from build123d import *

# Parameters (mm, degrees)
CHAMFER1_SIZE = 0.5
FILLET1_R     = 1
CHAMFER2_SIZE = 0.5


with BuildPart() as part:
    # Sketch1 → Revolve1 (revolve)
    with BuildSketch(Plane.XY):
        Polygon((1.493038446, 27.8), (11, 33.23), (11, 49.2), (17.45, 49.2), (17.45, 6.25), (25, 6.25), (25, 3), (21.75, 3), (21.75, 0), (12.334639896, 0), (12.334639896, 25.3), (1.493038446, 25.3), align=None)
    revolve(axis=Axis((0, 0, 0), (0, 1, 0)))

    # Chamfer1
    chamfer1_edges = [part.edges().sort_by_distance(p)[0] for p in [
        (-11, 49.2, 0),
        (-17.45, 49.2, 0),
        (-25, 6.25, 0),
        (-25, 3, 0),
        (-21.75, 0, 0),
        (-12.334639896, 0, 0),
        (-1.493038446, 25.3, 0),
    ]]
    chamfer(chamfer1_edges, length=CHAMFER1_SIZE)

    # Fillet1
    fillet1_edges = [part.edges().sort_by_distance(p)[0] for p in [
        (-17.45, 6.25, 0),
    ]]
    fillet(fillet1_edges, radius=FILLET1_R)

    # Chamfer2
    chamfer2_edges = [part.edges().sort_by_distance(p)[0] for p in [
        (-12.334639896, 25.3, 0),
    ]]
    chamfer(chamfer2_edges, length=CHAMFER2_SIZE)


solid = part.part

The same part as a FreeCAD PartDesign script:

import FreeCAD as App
import Part
import Sketcher
from FreeCAD import Vector
Q = App.Units.Quantity


def edges_at(feature, points):
    """Names of the edges that pass closest to the given points."""
    edges = feature.Shape.Edges
    near = lambda p: min(range(len(edges)), key=lambda i: edges[i].distToShape(Part.Vertex(*p))[0])
    return sorted({f"Edge{near(p) + 1}" for p in points})


def add_polygon(sketch, points):
    """Adds a closed chain of lines whose ends are joined by coincident constraints."""
    first, n = sketch.GeometryCount, len(points)
    for a, b in zip(points, points[1:] + points[:1]):
        sketch.addGeometry(Part.LineSegment(App.Vector(*a, 0), App.Vector(*b, 0)), False)
    for i in range(n):
        sketch.addConstraint(Sketcher.Constraint("Coincident", first + i, 2, first + (i + 1) % n, 1))

doc = App.newDocument("Part")
body = doc.addObject("PartDesign::Body", "Body")

# Sketch on XY plane
sketch1 = doc.addObject("Sketcher::SketchObject", "Sketch")
body.addObject(sketch1)
sketch1.AttachmentSupport = (doc.XY_Plane, [""])
sketch1.MapMode = "FlatFace"
add_polygon(sketch1, [(11, 33.2), (1.5, 27.8), (1.5, 25.3), (12.3, 25.3), (12.3, 0), (21.8, 0), (21.8, 3), (25, 3), (25, 6.2), (17.4, 6.2), (17.4, 49.2), (11, 49.2)])  # lines 0-11
sketch1.addConstraint([
    Sketcher.Constraint("Vertical", 1),
    Sketcher.Constraint("Horizontal", 2),
    Sketcher.Constraint("Vertical", 3),
    Sketcher.Constraint("Horizontal", 4),
    Sketcher.Constraint("Vertical", 5),
    Sketcher.Constraint("Horizontal", 6),
    Sketcher.Constraint("Vertical", 7),
    Sketcher.Constraint("Horizontal", 8),
    Sketcher.Constraint("Vertical", 9),
    Sketcher.Constraint("Horizontal", 10),
    Sketcher.Constraint("Vertical", 11),
    Sketcher.Constraint("PointOnObject", 3, 2, -1),
    Sketcher.Constraint("Equal", 6, 7),
    Sketcher.Constraint("DistanceY", 5, 1, 5, 2, Q("3 mm")),
    Sketcher.Constraint("DistanceY", 1, 2, 1, 1, Q("2.5 mm")),
    Sketcher.Constraint("DistanceY", 3, 2, 3, 1, Q("25.3 mm")),
    Sketcher.Constraint("DistanceX", -1, 1, 6, 2, Q("25 mm")),
    Sketcher.Constraint("DistanceX", -1, 1, 10, 2, Q("11 mm")),
    Sketcher.Constraint("DistanceX", 6, 1, 6, 2, Q("3.25 mm")),
    Sketcher.Constraint("DistanceX", 8, 2, 8, 1, Q("7.55 mm")),
    Sketcher.Constraint("DistanceY", 9, 1, 9, 2, Q("42.95 mm")),
    Sketcher.Constraint("DistanceY", 11, 2, 11, 1, Q("15.97 mm")),
    Sketcher.Constraint("DistanceX", 2, 1, 2, 2, Q("10.841601 mm")),
    Sketcher.Constraint("DistanceX", 4, 1, 4, 2, Q("9.41536 mm")),
])
revolution = doc.addObject("PartDesign::Revolution", "Revolution")
body.addObject(revolution)
revolution.Profile = sketch1
revolution.ReferenceAxis = (sketch1, ["V_Axis"])
revolution.Angle = 360
doc.recompute()

chamfer = doc.addObject("PartDesign::Chamfer", "Chamfer")
body.addObject(chamfer)
chamfer.Base = (revolution, edges_at(revolution, [
    (-11, 49.2, 0),
    (-17.45, 49.2, 0),
    (-25, 6.25, 0),
    (-25, 3, 0),
    (-21.75, 0, 0),
    (-12.335, 0, 0),
    (-1.493, 25.3, 0),
]))
chamfer.Size = 0.5
doc.recompute()

fillet = doc.addObject("PartDesign::Fillet", "Fillet")
body.addObject(fillet)
fillet.Base = (chamfer, edges_at(chamfer, [(-17.45, 6.25, 0)]))
fillet.Radius = 1
doc.recompute()

chamfer2 = doc.addObject("PartDesign::Chamfer", "Chamfer001")
body.addObject(chamfer2)
chamfer2.Base = (fillet, edges_at(fillet, [(-12.335, 25.3, 0)]))
chamfer2.Size = 0.5

doc.recompute()
